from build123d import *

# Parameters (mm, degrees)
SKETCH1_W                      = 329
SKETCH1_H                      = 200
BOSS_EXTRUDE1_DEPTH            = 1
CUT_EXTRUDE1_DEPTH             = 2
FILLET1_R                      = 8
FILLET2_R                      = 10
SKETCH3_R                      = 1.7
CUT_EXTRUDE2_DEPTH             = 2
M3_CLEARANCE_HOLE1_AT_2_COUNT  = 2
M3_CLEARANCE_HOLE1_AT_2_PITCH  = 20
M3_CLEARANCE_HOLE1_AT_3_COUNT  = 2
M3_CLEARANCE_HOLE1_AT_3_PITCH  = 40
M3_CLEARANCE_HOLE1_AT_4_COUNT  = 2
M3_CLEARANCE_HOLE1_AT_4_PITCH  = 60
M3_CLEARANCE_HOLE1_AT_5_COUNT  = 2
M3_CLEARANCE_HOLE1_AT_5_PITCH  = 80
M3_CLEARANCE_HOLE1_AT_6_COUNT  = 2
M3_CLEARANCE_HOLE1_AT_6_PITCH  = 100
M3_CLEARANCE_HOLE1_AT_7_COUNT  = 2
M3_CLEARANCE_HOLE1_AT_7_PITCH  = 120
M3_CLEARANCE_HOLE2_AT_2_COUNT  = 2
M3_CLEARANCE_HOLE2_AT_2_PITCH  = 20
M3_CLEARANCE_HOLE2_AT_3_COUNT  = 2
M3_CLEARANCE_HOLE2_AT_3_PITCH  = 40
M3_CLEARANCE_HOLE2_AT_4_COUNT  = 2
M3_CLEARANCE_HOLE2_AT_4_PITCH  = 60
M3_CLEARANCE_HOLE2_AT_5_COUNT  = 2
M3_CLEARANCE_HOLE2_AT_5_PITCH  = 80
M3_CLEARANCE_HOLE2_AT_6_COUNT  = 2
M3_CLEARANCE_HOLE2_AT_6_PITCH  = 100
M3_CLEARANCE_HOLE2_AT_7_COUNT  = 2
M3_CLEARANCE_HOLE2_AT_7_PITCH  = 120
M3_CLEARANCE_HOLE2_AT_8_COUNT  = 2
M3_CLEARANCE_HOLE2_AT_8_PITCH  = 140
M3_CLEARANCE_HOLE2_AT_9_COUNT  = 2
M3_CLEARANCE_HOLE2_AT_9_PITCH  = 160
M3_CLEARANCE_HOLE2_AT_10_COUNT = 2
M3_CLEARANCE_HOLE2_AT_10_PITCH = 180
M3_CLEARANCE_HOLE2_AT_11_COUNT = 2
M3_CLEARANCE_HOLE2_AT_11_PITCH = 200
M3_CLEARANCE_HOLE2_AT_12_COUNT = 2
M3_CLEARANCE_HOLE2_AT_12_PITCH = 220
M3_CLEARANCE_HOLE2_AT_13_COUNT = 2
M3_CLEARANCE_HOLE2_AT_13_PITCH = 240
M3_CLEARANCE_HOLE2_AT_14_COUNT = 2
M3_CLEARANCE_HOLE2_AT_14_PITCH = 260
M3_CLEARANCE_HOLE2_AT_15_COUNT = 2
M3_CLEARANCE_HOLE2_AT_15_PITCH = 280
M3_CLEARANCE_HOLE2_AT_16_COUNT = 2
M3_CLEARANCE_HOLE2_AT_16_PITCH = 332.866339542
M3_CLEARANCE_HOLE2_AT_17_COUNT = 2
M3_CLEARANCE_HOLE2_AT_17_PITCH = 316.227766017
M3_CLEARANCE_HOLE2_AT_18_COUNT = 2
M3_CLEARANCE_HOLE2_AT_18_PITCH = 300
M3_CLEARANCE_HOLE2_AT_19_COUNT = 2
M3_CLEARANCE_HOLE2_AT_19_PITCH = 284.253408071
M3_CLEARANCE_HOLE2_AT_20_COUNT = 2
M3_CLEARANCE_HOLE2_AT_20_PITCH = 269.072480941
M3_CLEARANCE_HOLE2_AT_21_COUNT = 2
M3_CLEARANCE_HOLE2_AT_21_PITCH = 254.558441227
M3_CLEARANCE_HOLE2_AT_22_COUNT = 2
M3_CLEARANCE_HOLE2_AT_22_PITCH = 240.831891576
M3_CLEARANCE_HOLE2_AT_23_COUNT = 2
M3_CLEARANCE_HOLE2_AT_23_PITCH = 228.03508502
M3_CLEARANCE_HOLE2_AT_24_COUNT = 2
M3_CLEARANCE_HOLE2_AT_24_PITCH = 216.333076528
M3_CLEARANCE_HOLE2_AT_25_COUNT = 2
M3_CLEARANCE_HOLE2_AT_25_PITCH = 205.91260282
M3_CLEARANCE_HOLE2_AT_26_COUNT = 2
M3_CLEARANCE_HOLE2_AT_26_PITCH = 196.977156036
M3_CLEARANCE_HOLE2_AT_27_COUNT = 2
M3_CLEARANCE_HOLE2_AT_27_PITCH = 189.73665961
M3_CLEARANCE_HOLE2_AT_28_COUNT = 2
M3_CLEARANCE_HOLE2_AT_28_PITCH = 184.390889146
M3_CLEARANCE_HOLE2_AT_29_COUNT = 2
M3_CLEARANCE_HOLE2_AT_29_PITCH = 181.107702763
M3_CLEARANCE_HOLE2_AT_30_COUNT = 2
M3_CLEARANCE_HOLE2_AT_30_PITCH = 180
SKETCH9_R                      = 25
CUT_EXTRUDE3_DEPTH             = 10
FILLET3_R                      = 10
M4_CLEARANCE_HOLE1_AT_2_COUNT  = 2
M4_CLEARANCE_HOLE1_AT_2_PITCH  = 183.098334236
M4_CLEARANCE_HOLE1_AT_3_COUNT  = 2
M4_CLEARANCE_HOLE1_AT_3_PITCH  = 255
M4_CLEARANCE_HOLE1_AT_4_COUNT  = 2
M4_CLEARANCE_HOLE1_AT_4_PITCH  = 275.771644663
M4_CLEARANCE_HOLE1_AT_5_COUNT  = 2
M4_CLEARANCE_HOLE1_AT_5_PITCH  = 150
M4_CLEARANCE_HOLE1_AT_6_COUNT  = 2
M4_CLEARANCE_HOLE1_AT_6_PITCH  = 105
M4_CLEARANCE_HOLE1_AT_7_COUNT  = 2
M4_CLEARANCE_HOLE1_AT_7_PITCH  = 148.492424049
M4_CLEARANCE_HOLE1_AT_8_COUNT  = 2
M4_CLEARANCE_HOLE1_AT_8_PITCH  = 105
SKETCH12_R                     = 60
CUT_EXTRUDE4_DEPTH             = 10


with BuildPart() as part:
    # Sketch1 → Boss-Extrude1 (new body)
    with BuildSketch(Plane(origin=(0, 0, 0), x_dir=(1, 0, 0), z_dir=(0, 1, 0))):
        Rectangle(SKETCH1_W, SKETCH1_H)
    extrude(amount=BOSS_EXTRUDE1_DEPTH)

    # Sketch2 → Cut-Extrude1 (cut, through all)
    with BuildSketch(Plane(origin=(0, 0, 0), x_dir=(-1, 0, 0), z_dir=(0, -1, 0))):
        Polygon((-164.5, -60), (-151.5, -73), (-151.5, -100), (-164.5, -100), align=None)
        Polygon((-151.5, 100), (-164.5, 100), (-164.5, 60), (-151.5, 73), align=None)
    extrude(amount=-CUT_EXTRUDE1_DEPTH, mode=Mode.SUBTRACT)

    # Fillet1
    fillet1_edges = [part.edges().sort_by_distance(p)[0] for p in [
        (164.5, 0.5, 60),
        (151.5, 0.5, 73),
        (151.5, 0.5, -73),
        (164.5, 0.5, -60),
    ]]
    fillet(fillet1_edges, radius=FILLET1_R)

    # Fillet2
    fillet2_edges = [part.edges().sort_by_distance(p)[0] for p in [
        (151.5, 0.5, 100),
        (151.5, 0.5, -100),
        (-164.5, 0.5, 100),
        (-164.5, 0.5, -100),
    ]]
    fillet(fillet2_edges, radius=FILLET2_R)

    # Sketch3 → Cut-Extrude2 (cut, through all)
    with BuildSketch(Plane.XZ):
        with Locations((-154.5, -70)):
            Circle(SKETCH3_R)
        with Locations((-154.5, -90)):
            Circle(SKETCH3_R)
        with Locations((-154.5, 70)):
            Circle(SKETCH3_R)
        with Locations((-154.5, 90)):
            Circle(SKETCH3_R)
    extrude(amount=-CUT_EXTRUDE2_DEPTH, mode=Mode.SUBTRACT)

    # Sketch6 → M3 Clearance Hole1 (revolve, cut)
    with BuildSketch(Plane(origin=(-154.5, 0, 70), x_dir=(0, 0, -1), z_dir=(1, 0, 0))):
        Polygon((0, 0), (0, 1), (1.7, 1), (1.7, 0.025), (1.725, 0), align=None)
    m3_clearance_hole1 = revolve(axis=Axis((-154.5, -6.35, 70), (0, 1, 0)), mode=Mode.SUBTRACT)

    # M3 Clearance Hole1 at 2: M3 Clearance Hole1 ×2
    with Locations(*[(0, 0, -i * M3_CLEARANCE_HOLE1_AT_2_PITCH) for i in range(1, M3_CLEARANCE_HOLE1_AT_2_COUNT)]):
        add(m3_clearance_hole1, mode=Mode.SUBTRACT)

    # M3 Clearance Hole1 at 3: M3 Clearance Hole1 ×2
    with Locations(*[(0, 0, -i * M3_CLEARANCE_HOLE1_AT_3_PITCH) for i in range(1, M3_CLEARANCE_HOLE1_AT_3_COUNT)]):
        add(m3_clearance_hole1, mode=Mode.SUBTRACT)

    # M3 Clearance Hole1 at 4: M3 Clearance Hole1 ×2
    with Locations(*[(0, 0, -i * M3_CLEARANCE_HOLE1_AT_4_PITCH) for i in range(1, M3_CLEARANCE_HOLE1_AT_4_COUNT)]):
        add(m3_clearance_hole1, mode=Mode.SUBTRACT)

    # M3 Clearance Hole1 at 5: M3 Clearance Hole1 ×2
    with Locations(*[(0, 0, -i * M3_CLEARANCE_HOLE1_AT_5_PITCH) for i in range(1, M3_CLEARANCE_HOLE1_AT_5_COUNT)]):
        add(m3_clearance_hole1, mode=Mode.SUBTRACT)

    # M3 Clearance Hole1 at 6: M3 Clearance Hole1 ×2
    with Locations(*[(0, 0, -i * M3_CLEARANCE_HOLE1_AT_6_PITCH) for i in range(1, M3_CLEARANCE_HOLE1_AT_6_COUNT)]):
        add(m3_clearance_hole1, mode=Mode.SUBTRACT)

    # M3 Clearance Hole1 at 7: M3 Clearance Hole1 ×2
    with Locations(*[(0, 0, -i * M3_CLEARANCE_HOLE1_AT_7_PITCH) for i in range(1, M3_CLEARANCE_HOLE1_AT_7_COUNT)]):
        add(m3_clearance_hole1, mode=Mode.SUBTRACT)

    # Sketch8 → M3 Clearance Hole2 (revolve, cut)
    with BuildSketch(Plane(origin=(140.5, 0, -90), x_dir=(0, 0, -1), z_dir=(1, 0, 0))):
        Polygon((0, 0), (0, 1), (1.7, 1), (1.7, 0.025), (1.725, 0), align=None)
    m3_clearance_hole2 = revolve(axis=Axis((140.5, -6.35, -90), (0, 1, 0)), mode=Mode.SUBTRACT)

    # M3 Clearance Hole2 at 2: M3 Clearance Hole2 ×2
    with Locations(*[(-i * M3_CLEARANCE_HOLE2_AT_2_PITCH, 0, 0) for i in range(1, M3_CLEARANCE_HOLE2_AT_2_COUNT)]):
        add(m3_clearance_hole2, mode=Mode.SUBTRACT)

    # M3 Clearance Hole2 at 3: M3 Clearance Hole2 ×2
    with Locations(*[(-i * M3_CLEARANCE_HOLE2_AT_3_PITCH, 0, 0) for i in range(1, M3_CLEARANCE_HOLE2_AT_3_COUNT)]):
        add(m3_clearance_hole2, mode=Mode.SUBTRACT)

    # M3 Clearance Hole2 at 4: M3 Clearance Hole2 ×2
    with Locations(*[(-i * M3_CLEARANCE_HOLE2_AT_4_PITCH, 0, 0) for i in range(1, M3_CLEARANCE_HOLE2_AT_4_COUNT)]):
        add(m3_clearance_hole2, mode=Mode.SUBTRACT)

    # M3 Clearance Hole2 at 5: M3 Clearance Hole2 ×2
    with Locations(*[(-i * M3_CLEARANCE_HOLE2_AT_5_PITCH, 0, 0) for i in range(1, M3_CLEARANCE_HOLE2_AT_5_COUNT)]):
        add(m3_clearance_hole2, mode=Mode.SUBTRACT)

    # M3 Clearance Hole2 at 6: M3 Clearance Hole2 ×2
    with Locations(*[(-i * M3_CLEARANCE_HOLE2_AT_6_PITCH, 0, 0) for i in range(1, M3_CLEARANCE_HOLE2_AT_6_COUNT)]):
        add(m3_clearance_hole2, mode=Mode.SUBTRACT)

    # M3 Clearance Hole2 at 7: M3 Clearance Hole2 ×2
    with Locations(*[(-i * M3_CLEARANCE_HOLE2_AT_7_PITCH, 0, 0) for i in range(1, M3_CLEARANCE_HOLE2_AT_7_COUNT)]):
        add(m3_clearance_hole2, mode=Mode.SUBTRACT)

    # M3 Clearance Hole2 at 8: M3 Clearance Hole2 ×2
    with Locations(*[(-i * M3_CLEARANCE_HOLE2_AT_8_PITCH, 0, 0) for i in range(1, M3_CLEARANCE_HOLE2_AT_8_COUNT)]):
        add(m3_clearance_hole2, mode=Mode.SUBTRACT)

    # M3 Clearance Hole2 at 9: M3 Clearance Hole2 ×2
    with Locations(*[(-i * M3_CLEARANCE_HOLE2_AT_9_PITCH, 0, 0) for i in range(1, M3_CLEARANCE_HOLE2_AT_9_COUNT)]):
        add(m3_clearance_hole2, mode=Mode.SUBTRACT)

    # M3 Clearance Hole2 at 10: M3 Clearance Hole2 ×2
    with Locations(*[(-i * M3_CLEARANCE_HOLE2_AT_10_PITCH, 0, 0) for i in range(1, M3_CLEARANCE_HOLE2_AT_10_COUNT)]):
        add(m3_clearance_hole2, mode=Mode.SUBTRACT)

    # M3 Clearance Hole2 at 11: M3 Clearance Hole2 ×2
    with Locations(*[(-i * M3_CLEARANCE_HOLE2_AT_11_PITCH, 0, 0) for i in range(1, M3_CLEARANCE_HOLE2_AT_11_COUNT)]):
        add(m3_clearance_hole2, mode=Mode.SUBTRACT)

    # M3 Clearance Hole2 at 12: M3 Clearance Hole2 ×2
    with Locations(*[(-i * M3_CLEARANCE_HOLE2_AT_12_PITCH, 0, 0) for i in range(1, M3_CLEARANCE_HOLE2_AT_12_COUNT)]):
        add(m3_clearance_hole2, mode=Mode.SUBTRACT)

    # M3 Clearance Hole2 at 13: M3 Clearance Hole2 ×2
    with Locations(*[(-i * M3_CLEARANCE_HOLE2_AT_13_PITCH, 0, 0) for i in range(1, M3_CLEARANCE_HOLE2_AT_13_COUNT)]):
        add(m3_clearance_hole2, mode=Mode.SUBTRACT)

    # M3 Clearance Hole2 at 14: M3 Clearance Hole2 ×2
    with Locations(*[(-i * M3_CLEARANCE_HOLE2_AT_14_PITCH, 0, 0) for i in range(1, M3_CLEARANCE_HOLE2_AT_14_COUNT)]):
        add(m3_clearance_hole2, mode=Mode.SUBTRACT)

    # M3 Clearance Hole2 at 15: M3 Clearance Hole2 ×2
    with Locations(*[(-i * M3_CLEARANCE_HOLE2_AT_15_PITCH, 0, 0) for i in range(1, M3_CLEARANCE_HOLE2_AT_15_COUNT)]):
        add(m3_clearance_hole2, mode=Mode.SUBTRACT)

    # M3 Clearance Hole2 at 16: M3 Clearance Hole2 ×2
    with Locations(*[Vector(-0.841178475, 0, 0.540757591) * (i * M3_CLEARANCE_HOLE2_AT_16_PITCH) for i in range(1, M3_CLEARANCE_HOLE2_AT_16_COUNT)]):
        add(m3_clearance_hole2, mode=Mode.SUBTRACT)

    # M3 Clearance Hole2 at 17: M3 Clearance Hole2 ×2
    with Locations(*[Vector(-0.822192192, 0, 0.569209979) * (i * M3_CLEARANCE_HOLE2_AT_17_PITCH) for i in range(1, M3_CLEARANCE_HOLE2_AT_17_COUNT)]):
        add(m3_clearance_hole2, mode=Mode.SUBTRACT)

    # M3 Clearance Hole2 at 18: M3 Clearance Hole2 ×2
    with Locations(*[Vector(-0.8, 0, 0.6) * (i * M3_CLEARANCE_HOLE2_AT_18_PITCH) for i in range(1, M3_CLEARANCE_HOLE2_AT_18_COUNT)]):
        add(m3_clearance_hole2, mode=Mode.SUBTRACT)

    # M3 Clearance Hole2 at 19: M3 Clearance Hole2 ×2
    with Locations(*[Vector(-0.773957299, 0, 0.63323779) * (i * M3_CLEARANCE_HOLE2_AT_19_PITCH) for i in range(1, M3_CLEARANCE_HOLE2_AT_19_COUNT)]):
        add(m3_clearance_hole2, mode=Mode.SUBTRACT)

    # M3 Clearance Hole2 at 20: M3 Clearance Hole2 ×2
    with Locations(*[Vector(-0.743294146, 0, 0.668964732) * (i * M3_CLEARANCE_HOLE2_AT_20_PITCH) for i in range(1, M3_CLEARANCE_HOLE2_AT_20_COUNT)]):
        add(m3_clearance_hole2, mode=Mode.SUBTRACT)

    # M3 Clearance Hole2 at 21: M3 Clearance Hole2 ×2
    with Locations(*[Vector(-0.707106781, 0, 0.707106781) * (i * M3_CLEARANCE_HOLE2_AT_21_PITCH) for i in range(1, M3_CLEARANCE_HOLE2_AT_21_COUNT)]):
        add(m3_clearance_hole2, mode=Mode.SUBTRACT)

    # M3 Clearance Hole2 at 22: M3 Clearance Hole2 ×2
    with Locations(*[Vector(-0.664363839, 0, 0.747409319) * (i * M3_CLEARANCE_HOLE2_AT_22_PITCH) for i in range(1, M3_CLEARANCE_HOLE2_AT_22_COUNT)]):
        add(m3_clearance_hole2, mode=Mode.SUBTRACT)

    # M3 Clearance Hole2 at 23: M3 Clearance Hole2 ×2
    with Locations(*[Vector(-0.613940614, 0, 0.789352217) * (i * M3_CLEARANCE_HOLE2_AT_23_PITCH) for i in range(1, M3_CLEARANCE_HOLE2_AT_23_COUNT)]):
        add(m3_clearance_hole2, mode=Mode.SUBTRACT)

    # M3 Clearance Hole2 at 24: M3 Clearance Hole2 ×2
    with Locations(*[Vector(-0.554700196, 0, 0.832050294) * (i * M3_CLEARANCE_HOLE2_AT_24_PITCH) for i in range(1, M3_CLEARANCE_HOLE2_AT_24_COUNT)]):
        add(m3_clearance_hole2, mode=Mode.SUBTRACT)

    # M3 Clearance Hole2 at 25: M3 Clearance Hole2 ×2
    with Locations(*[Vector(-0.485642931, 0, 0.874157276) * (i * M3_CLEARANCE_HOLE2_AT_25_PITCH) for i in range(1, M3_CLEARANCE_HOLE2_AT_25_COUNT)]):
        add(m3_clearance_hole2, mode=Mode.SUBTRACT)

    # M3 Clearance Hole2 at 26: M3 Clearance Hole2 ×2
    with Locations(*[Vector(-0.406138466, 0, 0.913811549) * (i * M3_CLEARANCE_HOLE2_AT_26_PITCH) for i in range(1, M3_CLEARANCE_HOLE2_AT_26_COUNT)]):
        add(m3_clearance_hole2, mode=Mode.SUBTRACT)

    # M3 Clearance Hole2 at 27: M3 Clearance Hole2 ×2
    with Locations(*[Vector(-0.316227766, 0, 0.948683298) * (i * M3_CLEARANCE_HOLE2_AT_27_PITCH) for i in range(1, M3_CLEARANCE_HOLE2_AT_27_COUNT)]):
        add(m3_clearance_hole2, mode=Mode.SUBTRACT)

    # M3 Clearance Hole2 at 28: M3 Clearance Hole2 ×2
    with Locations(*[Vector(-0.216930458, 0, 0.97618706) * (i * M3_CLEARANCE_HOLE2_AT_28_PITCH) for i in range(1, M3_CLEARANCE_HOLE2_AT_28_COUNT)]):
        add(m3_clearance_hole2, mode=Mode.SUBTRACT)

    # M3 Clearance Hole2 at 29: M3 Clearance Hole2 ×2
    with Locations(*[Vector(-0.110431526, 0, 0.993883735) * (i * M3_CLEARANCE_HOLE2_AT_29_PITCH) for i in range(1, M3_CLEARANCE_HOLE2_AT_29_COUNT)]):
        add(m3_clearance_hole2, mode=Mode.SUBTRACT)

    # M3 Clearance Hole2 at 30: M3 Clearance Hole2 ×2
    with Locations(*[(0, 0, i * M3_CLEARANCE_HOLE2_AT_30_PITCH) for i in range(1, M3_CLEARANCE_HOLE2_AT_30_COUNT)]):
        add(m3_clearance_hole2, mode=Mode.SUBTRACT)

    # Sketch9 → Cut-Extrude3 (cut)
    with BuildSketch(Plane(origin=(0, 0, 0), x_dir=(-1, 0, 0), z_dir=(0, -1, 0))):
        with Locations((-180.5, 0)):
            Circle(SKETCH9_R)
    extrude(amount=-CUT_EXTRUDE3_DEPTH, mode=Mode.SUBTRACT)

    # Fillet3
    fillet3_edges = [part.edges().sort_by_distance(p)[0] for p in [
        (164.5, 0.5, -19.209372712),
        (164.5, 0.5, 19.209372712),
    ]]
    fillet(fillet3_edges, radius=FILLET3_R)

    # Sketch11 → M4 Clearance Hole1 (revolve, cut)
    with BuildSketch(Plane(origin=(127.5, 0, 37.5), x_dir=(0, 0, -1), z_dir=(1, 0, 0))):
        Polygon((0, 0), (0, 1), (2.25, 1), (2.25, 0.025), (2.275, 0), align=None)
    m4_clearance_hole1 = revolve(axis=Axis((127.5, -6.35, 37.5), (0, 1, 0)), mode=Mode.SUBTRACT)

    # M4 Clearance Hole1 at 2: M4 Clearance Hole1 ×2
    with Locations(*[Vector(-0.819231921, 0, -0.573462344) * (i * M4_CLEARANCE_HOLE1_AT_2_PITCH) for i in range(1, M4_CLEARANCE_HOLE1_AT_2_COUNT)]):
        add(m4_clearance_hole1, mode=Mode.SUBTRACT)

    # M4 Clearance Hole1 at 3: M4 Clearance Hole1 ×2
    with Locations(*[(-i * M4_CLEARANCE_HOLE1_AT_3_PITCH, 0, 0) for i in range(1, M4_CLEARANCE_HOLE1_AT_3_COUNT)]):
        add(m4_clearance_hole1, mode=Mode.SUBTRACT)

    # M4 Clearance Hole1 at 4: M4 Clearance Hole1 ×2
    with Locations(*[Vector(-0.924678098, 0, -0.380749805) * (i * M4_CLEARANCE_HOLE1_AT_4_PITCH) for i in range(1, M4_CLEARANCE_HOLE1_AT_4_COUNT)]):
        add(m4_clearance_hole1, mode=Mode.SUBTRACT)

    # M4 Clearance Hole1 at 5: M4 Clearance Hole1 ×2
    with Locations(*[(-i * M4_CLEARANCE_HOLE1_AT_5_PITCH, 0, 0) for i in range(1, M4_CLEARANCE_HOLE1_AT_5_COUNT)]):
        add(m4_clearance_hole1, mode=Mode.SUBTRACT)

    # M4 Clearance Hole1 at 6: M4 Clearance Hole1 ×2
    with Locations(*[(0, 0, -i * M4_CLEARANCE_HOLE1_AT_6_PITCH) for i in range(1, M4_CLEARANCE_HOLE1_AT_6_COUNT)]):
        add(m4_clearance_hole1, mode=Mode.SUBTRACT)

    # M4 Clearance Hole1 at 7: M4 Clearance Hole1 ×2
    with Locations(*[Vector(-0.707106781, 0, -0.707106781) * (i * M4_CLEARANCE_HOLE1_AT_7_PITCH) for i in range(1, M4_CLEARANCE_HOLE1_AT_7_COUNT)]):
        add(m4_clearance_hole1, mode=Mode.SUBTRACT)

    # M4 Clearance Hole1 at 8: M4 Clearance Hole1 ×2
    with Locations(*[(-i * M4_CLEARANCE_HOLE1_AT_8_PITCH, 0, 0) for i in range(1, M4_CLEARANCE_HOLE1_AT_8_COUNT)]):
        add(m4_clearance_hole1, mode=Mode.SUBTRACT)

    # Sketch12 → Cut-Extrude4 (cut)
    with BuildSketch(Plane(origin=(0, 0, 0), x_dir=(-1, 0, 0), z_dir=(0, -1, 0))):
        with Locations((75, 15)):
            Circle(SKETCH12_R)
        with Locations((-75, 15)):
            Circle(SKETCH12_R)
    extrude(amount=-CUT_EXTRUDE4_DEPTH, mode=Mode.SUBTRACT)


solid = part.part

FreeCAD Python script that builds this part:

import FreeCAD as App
import Part
import Sketcher

V = App.Vector
Q = App.Units.Quantity


def edges_at(feature, points):
    """Names of the edges that pass closest to the given points."""
    edges = feature.Shape.Edges
    near = lambda p: min(range(len(edges)), key=lambda i: edges[i].distToShape(Part.Vertex(*p))[0])
    return sorted({f"Edge{near(p) + 1}" for p in points})

doc = App.newDocument("Part")
body = doc.addObject("PartDesign::Body", "Body")

# Sketch on XZ plane
sketch1 = doc.addObject("Sketcher::SketchObject", "Sketch")
body.addObject(sketch1)
sketch1.AttachmentSupport = (doc.XZ_Plane, [""])
sketch1.MapMode = "FlatFace"
sketch1.addGeometry(Part.LineSegment(V(-164.5, -100, 0), V(-164.5, 100, 0)), False)
sketch1.addGeometry(Part.LineSegment(V(-164.5, 100, 0), V(164.5, 100, 0)), False)
sketch1.addGeometry(Part.LineSegment(V(164.5, 100, 0), V(164.5, -100, 0)), False)
sketch1.addGeometry(Part.LineSegment(V(164.5, -100, 0), V(-164.5, -100, 0)), False)
sketch1.addConstraint(Sketcher.Constraint("Coincident", 0, 2, 1, 1))
sketch1.addConstraint(Sketcher.Constraint("Coincident", 1, 2, 2, 1))
sketch1.addConstraint(Sketcher.Constraint("Coincident", 2, 2, 3, 1))
sketch1.addConstraint(Sketcher.Constraint("Coincident", 3, 2, 0, 1))
sketch1.addConstraint(Sketcher.Constraint("Vertical", 0))
sketch1.addConstraint(Sketcher.Constraint("Horizontal", 1))
sketch1.addConstraint(Sketcher.Constraint("Vertical", 2))
sketch1.addConstraint(Sketcher.Constraint("Horizontal", 3))
sketch1.addConstraint(Sketcher.Constraint("Symmetric", 0, 2, 2, 2, -1, 1))
sketch1.addConstraint(Sketcher.Constraint("DistanceX", 1, 1, 1, 2, 329.0))
sketch1.addConstraint(Sketcher.Constraint("DistanceY", 0, 1, 0, 2, 200.0))
pad1 = doc.addObject("PartDesign::Pad", "Pad")
body.addObject(pad1)
pad1.Profile = sketch1
pad1.Length = 1
pad1.Reversed = True

# Sketch on XZ plane
sketch2 = doc.addObject("Sketcher::SketchObject", "Sketch001")
body.addObject(sketch2)
sketch2.AttachmentSupport = (doc.XZ_Plane, [""])
sketch2.MapMode = "FlatFace"
sketch2.addGeometry(Part.LineSegment(V(151.5, 73, 0), V(164.5, 60, 0)), False)
sketch2.addGeometry(Part.LineSegment(V(164.5, 60, 0), V(164.5, 100, 0)), False)
sketch2.addGeometry(Part.LineSegment(V(164.5, 100, 0), V(151.5, 100, 0)), False)
sketch2.addGeometry(Part.LineSegment(V(151.5, 100, 0), V(151.5, 73, 0)), False)
sketch2.addGeometry(Part.LineSegment(V(151.5, -100, 0), V(164.5, -100, 0)), False)
sketch2.addGeometry(Part.LineSegment(V(164.5, -100, 0), V(164.5, -60, 0)), False)
sketch2.addGeometry(Part.LineSegment(V(164.5, -60, 0), V(151.5, -73, 0)), False)
sketch2.addGeometry(Part.LineSegment(V(151.5, -73, 0), V(151.5, -100, 0)), False)
sketch2.addConstraint(Sketcher.Constraint("Coincident", 0, 2, 1, 1))
sketch2.addConstraint(Sketcher.Constraint("Coincident", 1, 2, 2, 1))
sketch2.addConstraint(Sketcher.Constraint("Coincident", 2, 2, 3, 1))
sketch2.addConstraint(Sketcher.Constraint("Coincident", 3, 2, 0, 1))
sketch2.addConstraint(Sketcher.Constraint("Coincident", 4, 2, 5, 1))
sketch2.addConstraint(Sketcher.Constraint("Coincident", 5, 2, 6, 1))
sketch2.addConstraint(Sketcher.Constraint("Coincident", 6, 2, 7, 1))
sketch2.addConstraint(Sketcher.Constraint("Coincident", 7, 2, 4, 1))
sketch2.addConstraint(Sketcher.Constraint("Vertical", 1))
sketch2.addConstraint(Sketcher.Constraint("Horizontal", 2))
sketch2.addConstraint(Sketcher.Constraint("Vertical", 3))
sketch2.addConstraint(Sketcher.Constraint("Horizontal", 4))
sketch2.addConstraint(Sketcher.Constraint("Vertical", 5))
sketch2.addConstraint(Sketcher.Constraint("Vertical", 7))
sketch2.addConstraint(Sketcher.Constraint("Symmetric", 1, 2, 4, 2, -1))
sketch2.addConstraint(Sketcher.Constraint("Symmetric", 3, 2, 6, 2, -1))
sketch2.addConstraint(Sketcher.Constraint("Perpendicular", 0, 6))
sketch2.addConstraint(Sketcher.Constraint("Equal", 1, 5))
sketch2.addConstraint(Sketcher.Constraint("DistanceX", 2, 2, 2, 1, 13.0))
sketch2.addConstraint(Sketcher.Constraint("DistanceY", 1, 1, 1, 2, 40.0))
sketch2.addConstraint(Sketcher.Constraint("DistanceY", -1, 1, 0, 2, 60.0))
sketch2.addConstraint(Sketcher.Constraint("DistanceX", -1, 1, 0, 2, 164.5))
pocket1 = doc.addObject("PartDesign::Pocket", "Pocket")
body.addObject(pocket1)
pocket1.Profile = sketch2
pocket1.Type = "ThroughAll"
doc.recompute()

fillet = doc.addObject("PartDesign::Fillet", "Fillet")
body.addObject(fillet)
fillet.Base = (pocket1, edges_at(pocket1, [
    (164.5, 0.5, 60),
    (151.5, 0.5, 73),
    (151.5, 0.5, -73),
    (164.5, 0.5, -60),
]))
fillet.Radius = 8
doc.recompute()

fillet2 = doc.addObject("PartDesign::Fillet", "Fillet001")
body.addObject(fillet2)
fillet2.Base = (fillet, edges_at(fillet, [
    (151.5, 0.5, 100),
    (151.5, 0.5, -100),
    (-164.5, 0.5, 100),
    (-164.5, 0.5, -100),
]))
fillet2.Radius = 10

# Sketch on XZ plane
sketch3 = doc.addObject("Sketcher::SketchObject", "Sketch002")
body.addObject(sketch3)
sketch3.AttachmentSupport = (doc.XZ_Plane, [""])
sketch3.MapMode = "FlatFace"
sketch3.addGeometry(Part.Circle(V(-154.5, -70, 0), V(0, 0, 1), 1.7), False)
sketch3.addGeometry(Part.Circle(V(-154.5, -90, 0), V(0, 0, 1), 1.7), False)
sketch3.addGeometry(Part.Circle(V(-154.5, 70, 0), V(0, 0, 1), 1.7), False)
sketch3.addGeometry(Part.Circle(V(-154.5, 90, 0), V(0, 0, 1), 1.7), False)
sketch3.addConstraint(Sketcher.Constraint("Equal", 0, 1))
sketch3.addConstraint(Sketcher.Constraint("Equal", 1, 2))
sketch3.addConstraint(Sketcher.Constraint("Equal", 2, 3))
sketch3.addConstraint(Sketcher.Constraint("Symmetric", 0, 3, 2, 3, -1))
sketch3.addConstraint(Sketcher.Constraint("Symmetric", 1, 3, 3, 3, -1))
sketch3.addConstraint(Sketcher.Constraint("Vertical", 0, 3, 1, 3))
sketch3.addConstraint(Sketcher.Constraint("Diameter", 0, 3.4))
sketch3.addConstraint(Sketcher.Constraint("DistanceY", 0, 3, -1, 1, 70.0))
sketch3.addConstraint(Sketcher.Constraint("DistanceY", 1, 3, -1, 1, 90.0))
sketch3.addConstraint(Sketcher.Constraint("DistanceX", 0, 3, -1, 1, 154.5))
pocket2 = doc.addObject("PartDesign::Pocket", "Pocket001")
body.addObject(pocket2)
pocket2.Profile = sketch3
pocket2.Type = "ThroughAll"

# Sketch on YZ plane
sketch4 = doc.addObject("Sketcher::SketchObject", "Sketch003")
body.addObject(sketch4)
sketch4.AttachmentSupport = (doc.YZ_Plane, [""])
sketch4.MapMode = "FlatFace"
sketch4.AttachmentOffset = App.Placement(V(0, 0, -154.5), App.Rotation())
sketch4.addGeometry(Part.LineSegment(V(1, 70, 0), V(0, 70, 0)), False)
sketch4.addGeometry(Part.LineSegment(V(0, 70, 0), V(0, 68.275, 0)), False)
sketch4.addGeometry(Part.LineSegment(V(0, 68.275, 0), V(0.025, 68.3, 0)), False)
sketch4.addGeometry(Part.LineSegment(V(0.025, 68.3, 0), V(1, 68.3, 0)), False)
sketch4.addGeometry(Part.LineSegment(V(1, 68.3, 0), V(1, 70, 0)), False)
sketch4.addGeometry(Part.LineSegment(V(0, 70, 0), V(1, 70, 0)), True)  # axis
sketch4.addConstraint(Sketcher.Constraint("Coincident", 0, 2, 1, 1))
sketch4.addConstraint(Sketcher.Constraint("Coincident", 1, 2, 2, 1))
sketch4.addConstraint(Sketcher.Constraint("Coincident", 2, 2, 3, 1))
sketch4.addConstraint(Sketcher.Constraint("Coincident", 3, 2, 4, 1))
sketch4.addConstraint(Sketcher.Constraint("Coincident", 4, 2, 0, 1))
sketch4.addConstraint(Sketcher.Constraint("Horizontal", 0))
sketch4.addConstraint(Sketcher.Constraint("Vertical", 1))
sketch4.addConstraint(Sketcher.Constraint("Horizontal", 3))
sketch4.addConstraint(Sketcher.Constraint("Vertical", 4))
sketch4.addConstraint(Sketcher.Constraint("Horizontal", 5))
sketch4.addConstraint(Sketcher.Constraint("Coincident", 5, 1, 0, 2))
sketch4.addConstraint(Sketcher.Constraint("PointOnObject", 0, 2, -2))
sketch4.addConstraint(Sketcher.Constraint("Vertical", 3, 2, 5, 2))
sketch4.addConstraint(Sketcher.Constraint("DistanceX", 0, 2, 0, 1, 1.0))
sketch4.addConstraint(Sketcher.Constraint("Angle", 2, Q("45 deg")))
sketch4.addConstraint(Sketcher.Constraint("DistanceY", 4, 1, 4, 2, 1.7))
sketch4.addConstraint(Sketcher.Constraint("DistanceY", -1, 1, 0, 2, 70.0))
sketch4.addConstraint(Sketcher.Constraint("DistanceX", 3, 1, 3, 2, 0.975))
groove = doc.addObject("PartDesign::Groove", "Groove")
body.addObject(groove)
groove.Profile = sketch4
groove.ReferenceAxis = (sketch4, ["Axis0"])
groove.Angle = 360
doc.recompute()

linearpattern = doc.addObject("PartDesign::LinearPattern", "LinearPattern")
body.addObject(linearpattern)
linearpattern.Originals = [groove]
linearpattern.Direction = (doc.Z_Axis, [""])
linearpattern.Mode = "offset"
linearpattern.Offset = 20
linearpattern.Occurrences = 2
linearpattern.Reversed = True
body.Tip = linearpattern
doc.recompute()

linearpattern2 = doc.addObject("PartDesign::LinearPattern", "LinearPattern001")
body.addObject(linearpattern2)
linearpattern2.Originals = [groove]
linearpattern2.Direction = (doc.Z_Axis, [""])
linearpattern2.Mode = "offset"
linearpattern2.Offset = 40
linearpattern2.Occurrences = 2
linearpattern2.Reversed = True
body.Tip = linearpattern2
doc.recompute()

linearpattern3 = doc.addObject("PartDesign::LinearPattern", "LinearPattern002")
body.addObject(linearpattern3)
linearpattern3.Originals = [groove]
linearpattern3.Direction = (doc.Z_Axis, [""])
linearpattern3.Mode = "offset"
linearpattern3.Offset = 60
linearpattern3.Occurrences = 2
linearpattern3.Reversed = True
body.Tip = linearpattern3
doc.recompute()

linearpattern4 = doc.addObject("PartDesign::LinearPattern", "LinearPattern003")
body.addObject(linearpattern4)
linearpattern4.Originals = [groove]
linearpattern4.Direction = (doc.Z_Axis, [""])
linearpattern4.Mode = "offset"
linearpattern4.Offset = 80
linearpattern4.Occurrences = 2
linearpattern4.Reversed = True
body.Tip = linearpattern4
doc.recompute()

linearpattern5 = doc.addObject("PartDesign::LinearPattern", "LinearPattern004")
body.addObject(linearpattern5)
linearpattern5.Originals = [groove]
linearpattern5.Direction = (doc.Z_Axis, [""])
linearpattern5.Mode = "offset"
linearpattern5.Offset = 100
linearpattern5.Occurrences = 2
linearpattern5.Reversed = True
body.Tip = linearpattern5
doc.recompute()

linearpattern6 = doc.addObject("PartDesign::LinearPattern", "LinearPattern005")
body.addObject(linearpattern6)
linearpattern6.Originals = [groove]
linearpattern6.Direction = (doc.Z_Axis, [""])
linearpattern6.Mode = "offset"
linearpattern6.Offset = 120
linearpattern6.Occurrences = 2
linearpattern6.Reversed = True
body.Tip = linearpattern6

# Sketch on YZ plane
sketch5 = doc.addObject("Sketcher::SketchObject", "Sketch004")
body.addObject(sketch5)
sketch5.AttachmentSupport = (doc.YZ_Plane, [""])
sketch5.MapMode = "FlatFace"
sketch5.AttachmentOffset = App.Placement(V(0, 0, 140.5), App.Rotation())
sketch5.addGeometry(Part.LineSegment(V(1, -90, 0), V(0, -90, 0)), False)
sketch5.addGeometry(Part.LineSegment(V(0, -90, 0), V(0, -91.725, 0)), False)
sketch5.addGeometry(Part.LineSegment(V(0, -91.725, 0), V(0.025, -91.7, 0)), False)
sketch5.addGeometry(Part.LineSegment(V(0.025, -91.7, 0), V(1, -91.7, 0)), False)
sketch5.addGeometry(Part.LineSegment(V(1, -91.7, 0), V(1, -90, 0)), False)
sketch5.addGeometry(Part.LineSegment(V(0, -90, 0), V(1, -90, 0)), True)  # axis
sketch5.addConstraint(Sketcher.Constraint("Coincident", 0, 2, 1, 1))
sketch5.addConstraint(Sketcher.Constraint("Coincident", 1, 2, 2, 1))
sketch5.addConstraint(Sketcher.Constraint("Coincident", 2, 2, 3, 1))
sketch5.addConstraint(Sketcher.Constraint("Coincident", 3, 2, 4, 1))
sketch5.addConstraint(Sketcher.Constraint("Coincident", 4, 2, 0, 1))
sketch5.addConstraint(Sketcher.Constraint("Horizontal", 0))
sketch5.addConstraint(Sketcher.Constraint("Vertical", 1))
sketch5.addConstraint(Sketcher.Constraint("Horizontal", 3))
sketch5.addConstraint(Sketcher.Constraint("Vertical", 4))
sketch5.addConstraint(Sketcher.Constraint("Horizontal", 5))
sketch5.addConstraint(Sketcher.Constraint("Coincident", 5, 1, 0, 2))
sketch5.addConstraint(Sketcher.Constraint("PointOnObject", 0, 2, -2))
sketch5.addConstraint(Sketcher.Constraint("Vertical", 3, 2, 5, 2))
sketch5.addConstraint(Sketcher.Constraint("DistanceX", 0, 2, 0, 1, 1.0))
sketch5.addConstraint(Sketcher.Constraint("Angle", 2, Q("45 deg")))
sketch5.addConstraint(Sketcher.Constraint("DistanceY", 4, 1, 4, 2, 1.7))
sketch5.addConstraint(Sketcher.Constraint("DistanceY", 0, 2, -1, 1, 90.0))
sketch5.addConstraint(Sketcher.Constraint("DistanceX", 3, 1, 3, 2, 0.975))
groove2 = doc.addObject("PartDesign::Groove", "Groove001")
body.addObject(groove2)
groove2.Profile = sketch5
groove2.ReferenceAxis = (sketch5, ["Axis0"])
groove2.Angle = 360
doc.recompute()

linearpattern7 = doc.addObject("PartDesign::LinearPattern", "LinearPattern006")
body.addObject(linearpattern7)
linearpattern7.Originals = [groove2]
linearpattern7.Direction = (doc.X_Axis, [""])
linearpattern7.Mode = "offset"
linearpattern7.Offset = 20
linearpattern7.Occurrences = 2
linearpattern7.Reversed = True
body.Tip = linearpattern7
doc.recompute()

linearpattern8 = doc.addObject("PartDesign::LinearPattern", "LinearPattern007")
body.addObject(linearpattern8)
linearpattern8.Originals = [groove2]
linearpattern8.Direction = (doc.X_Axis, [""])
linearpattern8.Mode = "offset"
linearpattern8.Offset = 40
linearpattern8.Occurrences = 2
linearpattern8.Reversed = True
body.Tip = linearpattern8
doc.recompute()

linearpattern9 = doc.addObject("PartDesign::LinearPattern", "LinearPattern008")
body.addObject(linearpattern9)
linearpattern9.Originals = [groove2]
linearpattern9.Direction = (doc.X_Axis, [""])
linearpattern9.Mode = "offset"
linearpattern9.Offset = 60
linearpattern9.Occurrences = 2
linearpattern9.Reversed = True
body.Tip = linearpattern9
doc.recompute()

linearpattern10 = doc.addObject("PartDesign::LinearPattern", "LinearPattern009")
body.addObject(linearpattern10)
linearpattern10.Originals = [groove2]
linearpattern10.Direction = (doc.X_Axis, [""])
linearpattern10.Mode = "offset"
linearpattern10.Offset = 80
linearpattern10.Occurrences = 2
linearpattern10.Reversed = True
body.Tip = linearpattern10
doc.recompute()

linearpattern11 = doc.addObject("PartDesign::LinearPattern", "LinearPattern010")
body.addObject(linearpattern11)
linearpattern11.Originals = [groove2]
linearpattern11.Direction = (doc.X_Axis, [""])
linearpattern11.Mode = "offset"
linearpattern11.Offset = 100
linearpattern11.Occurrences = 2
linearpattern11.Reversed = True
body.Tip = linearpattern11
doc.recompute()

linearpattern12 = doc.addObject("PartDesign::LinearPattern", "LinearPattern011")
body.addObject(linearpattern12)
linearpattern12.Originals = [groove2]
linearpattern12.Direction = (doc.X_Axis, [""])
linearpattern12.Mode = "offset"
linearpattern12.Offset = 120
linearpattern12.Occurrences = 2
linearpattern12.Reversed = True
body.Tip = linearpattern12
doc.recompute()

linearpattern13 = doc.addObject("PartDesign::LinearPattern", "LinearPattern012")
body.addObject(linearpattern13)
linearpattern13.Originals = [groove2]
linearpattern13.Direction = (doc.X_Axis, [""])
linearpattern13.Mode = "offset"
linearpattern13.Offset = 140
linearpattern13.Occurrences = 2
linearpattern13.Reversed = True
body.Tip = linearpattern13
doc.recompute()

linearpattern14 = doc.addObject("PartDesign::LinearPattern", "LinearPattern013")
body.addObject(linearpattern14)
linearpattern14.Originals = [groove2]
linearpattern14.Direction = (doc.X_Axis, [""])
linearpattern14.Mode = "offset"
linearpattern14.Offset = 160
linearpattern14.Occurrences = 2
linearpattern14.Reversed = True
body.Tip = linearpattern14
doc.recompute()

linearpattern15 = doc.addObject("PartDesign::LinearPattern", "LinearPattern014")
body.addObject(linearpattern15)
linearpattern15.Originals = [groove2]
linearpattern15.Direction = (doc.X_Axis, [""])
linearpattern15.Mode = "offset"
linearpattern15.Offset = 180
linearpattern15.Occurrences = 2
linearpattern15.Reversed = True
body.Tip = linearpattern15
doc.recompute()

linearpattern16 = doc.addObject("PartDesign::LinearPattern", "LinearPattern015")
body.addObject(linearpattern16)
linearpattern16.Originals = [groove2]
linearpattern16.Direction = (doc.X_Axis, [""])
linearpattern16.Mode = "offset"
linearpattern16.Offset = 200
linearpattern16.Occurrences = 2
linearpattern16.Reversed = True
body.Tip = linearpattern16
doc.recompute()

linearpattern17 = doc.addObject("PartDesign::LinearPattern", "LinearPattern016")
body.addObject(linearpattern17)
linearpattern17.Originals = [groove2]
linearpattern17.Direction = (doc.X_Axis, [""])
linearpattern17.Mode = "offset"
linearpattern17.Offset = 220
linearpattern17.Occurrences = 2
linearpattern17.Reversed = True
body.Tip = linearpattern17
doc.recompute()

linearpattern18 = doc.addObject("PartDesign::LinearPattern", "LinearPattern017")
body.addObject(linearpattern18)
linearpattern18.Originals = [groove2]
linearpattern18.Direction = (doc.X_Axis, [""])
linearpattern18.Mode = "offset"
linearpattern18.Offset = 240
linearpattern18.Occurrences = 2
linearpattern18.Reversed = True
body.Tip = linearpattern18
doc.recompute()

linearpattern19 = doc.addObject("PartDesign::LinearPattern", "LinearPattern018")
body.addObject(linearpattern19)
linearpattern19.Originals = [groove2]
linearpattern19.Direction = (doc.X_Axis, [""])
linearpattern19.Mode = "offset"
linearpattern19.Offset = 260
linearpattern19.Occurrences = 2
linearpattern19.Reversed = True
body.Tip = linearpattern19
doc.recompute()

linearpattern20 = doc.addObject("PartDesign::LinearPattern", "LinearPattern019")
body.addObject(linearpattern20)
linearpattern20.Originals = [groove2]
linearpattern20.Direction = (doc.X_Axis, [""])
linearpattern20.Mode = "offset"
linearpattern20.Offset = 280
linearpattern20.Occurrences = 2
linearpattern20.Reversed = True
body.Tip = linearpattern20
doc.recompute()

datumline = doc.addObject("PartDesign::Line", "DatumLine")
body.addObject(datumline)
datumline.Placement = App.Placement(V(0, 0, 0), App.Rotation(V(0, 0, 1), V(-0.841178475, 0, 0.540757591)))
linearpattern21 = doc.addObject("PartDesign::LinearPattern", "LinearPattern020")
body.addObject(linearpattern21)
linearpattern21.Originals = [groove2]
linearpattern21.Direction = (datumline, [""])
linearpattern21.Mode = "offset"
linearpattern21.Offset = 332.866339
linearpattern21.Occurrences = 2
body.Tip = linearpattern21
doc.recompute()

datumline2 = doc.addObject("PartDesign::Line", "DatumLine001")
body.addObject(datumline2)
datumline2.Placement = App.Placement(V(0, 0, 0), App.Rotation(V(0, 0, 1), V(-0.822192192, 0, 0.569209979)))
linearpattern22 = doc.addObject("PartDesign::LinearPattern", "LinearPattern021")
body.addObject(linearpattern22)
linearpattern22.Originals = [groove2]
linearpattern22.Direction = (datumline2, [""])
linearpattern22.Mode = "offset"
linearpattern22.Offset = 316.227766
linearpattern22.Occurrences = 2
body.Tip = linearpattern22
doc.recompute()

datumline3 = doc.addObject("PartDesign::Line", "DatumLine002")
body.addObject(datumline3)
datumline3.Placement = App.Placement(V(0, 0, 0), App.Rotation(V(0, 0, 1), V(-0.8, 0, 0.6)))
linearpattern23 = doc.addObject("PartDesign::LinearPattern", "LinearPattern022")
body.addObject(linearpattern23)
linearpattern23.Originals = [groove2]
linearpattern23.Direction = (datumline3, [""])
linearpattern23.Mode = "offset"
linearpattern23.Offset = 300
linearpattern23.Occurrences = 2
body.Tip = linearpattern23
doc.recompute()

datumline4 = doc.addObject("PartDesign::Line", "DatumLine003")
body.addObject(datumline4)
datumline4.Placement = App.Placement(V(0, 0, 0), App.Rotation(V(0, 0, 1), V(-0.773957299, 0, 0.63323779)))
linearpattern24 = doc.addObject("PartDesign::LinearPattern", "LinearPattern023")
body.addObject(linearpattern24)
linearpattern24.Originals = [groove2]
linearpattern24.Direction = (datumline4, [""])
linearpattern24.Mode = "offset"
linearpattern24.Offset = 284.253408
linearpattern24.Occurrences = 2
body.Tip = linearpattern24
doc.recompute()

datumline5 = doc.addObject("PartDesign::Line", "DatumLine004")
body.addObject(datumline5)
datumline5.Placement = App.Placement(V(0, 0, 0), App.Rotation(V(0, 0, 1), V(-0.743294146, 0, 0.668964732)))
linearpattern25 = doc.addObject("PartDesign::LinearPattern", "LinearPattern024")
body.addObject(linearpattern25)
linearpattern25.Originals = [groove2]
linearpattern25.Direction = (datumline5, [""])
linearpattern25.Mode = "offset"
linearpattern25.Offset = 269.072481
linearpattern25.Occurrences = 2
body.Tip = linearpattern25
doc.recompute()

datumline6 = doc.addObject("PartDesign::Line", "DatumLine005")
body.addObject(datumline6)
datumline6.Placement = App.Placement(V(0, 0, 0), App.Rotation(V(0, 0, 1), V(-0.707106781, 0, 0.707106781)))
linearpattern26 = doc.addObject("PartDesign::LinearPattern", "LinearPattern025")
body.addObject(linearpattern26)
linearpattern26.Originals = [groove2]
linearpattern26.Direction = (datumline6, [""])
linearpattern26.Mode = "offset"
linearpattern26.Offset = 254.558441
linearpattern26.Occurrences = 2
body.Tip = linearpattern26
doc.recompute()

datumline7 = doc.addObject("PartDesign::Line", "DatumLine006")
body.addObject(datumline7)
datumline7.Placement = App.Placement(V(0, 0, 0), App.Rotation(V(0, 0, 1), V(-0.664363839, 0, 0.747409319)))
linearpattern27 = doc.addObject("PartDesign::LinearPattern", "LinearPattern026")
body.addObject(linearpattern27)
linearpattern27.Originals = [groove2]
linearpattern27.Direction = (datumline7, [""])
linearpattern27.Mode = "offset"
linearpattern27.Offset = 240.831892
linearpattern27.Occurrences = 2
body.Tip = linearpattern27
doc.recompute()

datumline8 = doc.addObject("PartDesign::Line", "DatumLine007")
body.addObject(datumline8)
datumline8.Placement = App.Placement(V(0, 0, 0), App.Rotation(V(0, 0, 1), V(-0.613940614, 0, 0.789352217)))
linearpattern28 = doc.addObject("PartDesign::LinearPattern", "LinearPattern027")
body.addObject(linearpattern28)
linearpattern28.Originals = [groove2]
linearpattern28.Direction = (datumline8, [""])
linearpattern28.Mode = "offset"
linearpattern28.Offset = 228.035085
linearpattern28.Occurrences = 2
body.Tip = linearpattern28
doc.recompute()

datumline9 = doc.addObject("PartDesign::Line", "DatumLine008")
body.addObject(datumline9)
datumline9.Placement = App.Placement(V(0, 0, 0), App.Rotation(V(0, 0, 1), V(-0.554700196, 0, 0.832050294)))
linearpattern29 = doc.addObject("PartDesign::LinearPattern", "LinearPattern028")
body.addObject(linearpattern29)
linearpattern29.Originals = [groove2]
linearpattern29.Direction = (datumline9, [""])
linearpattern29.Mode = "offset"
linearpattern29.Offset = 216.333076
linearpattern29.Occurrences = 2
body.Tip = linearpattern29
doc.recompute()

datumline10 = doc.addObject("PartDesign::Line", "DatumLine009")
body.addObject(datumline10)
datumline10.Placement = App.Placement(V(0, 0, 0), App.Rotation(V(0, 0, 1), V(-0.485642931, 0, 0.874157276)))
linearpattern30 = doc.addObject("PartDesign::LinearPattern", "LinearPattern029")
body.addObject(linearpattern30)
linearpattern30.Originals = [groove2]
linearpattern30.Direction = (datumline10, [""])
linearpattern30.Mode = "offset"
linearpattern30.Offset = 205.912603
linearpattern30.Occurrences = 2
body.Tip = linearpattern30
doc.recompute()

datumline11 = doc.addObject("PartDesign::Line", "DatumLine010")
body.addObject(datumline11)
datumline11.Placement = App.Placement(V(0, 0, 0), App.Rotation(V(0, 0, 1), V(-0.406138466, 0, 0.913811549)))
linearpattern31 = doc.addObject("PartDesign::LinearPattern", "LinearPattern030")
body.addObject(linearpattern31)
linearpattern31.Originals = [groove2]
linearpattern31.Direction = (datumline11, [""])
linearpattern31.Mode = "offset"
linearpattern31.Offset = 196.977156
linearpattern31.Occurrences = 2
body.Tip = linearpattern31
doc.recompute()

datumline12 = doc.addObject("PartDesign::Line", "DatumLine011")
body.addObject(datumline12)
datumline12.Placement = App.Placement(V(0, 0, 0), App.Rotation(V(0, 0, 1), V(-0.316227766, 0, 0.948683298)))
linearpattern32 = doc.addObject("PartDesign::LinearPattern", "LinearPattern031")
body.addObject(linearpattern32)
linearpattern32.Originals = [groove2]
linearpattern32.Direction = (datumline12, [""])
linearpattern32.Mode = "offset"
linearpattern32.Offset = 189.73666
linearpattern32.Occurrences = 2
body.Tip = linearpattern32
doc.recompute()

datumline13 = doc.addObject("PartDesign::Line", "DatumLine012")
body.addObject(datumline13)
datumline13.Placement = App.Placement(V(0, 0, 0), App.Rotation(V(0, 0, 1), V(-0.216930458, 0, 0.97618706)))
linearpattern33 = doc.addObject("PartDesign::LinearPattern", "LinearPattern032")
body.addObject(linearpattern33)
linearpattern33.Originals = [groove2]
linearpattern33.Direction = (datumline13, [""])
linearpattern33.Mode = "offset"
linearpattern33.Offset = 184.390889
linearpattern33.Occurrences = 2
body.Tip = linearpattern33
doc.recompute()

datumline14 = doc.addObject("PartDesign::Line", "DatumLine013")
body.addObject(datumline14)
datumline14.Placement = App.Placement(V(0, 0, 0), App.Rotation(V(0, 0, 1), V(-0.110431526, 0, 0.993883735)))
linearpattern34 = doc.addObject("PartDesign::LinearPattern", "LinearPattern033")
body.addObject(linearpattern34)
linearpattern34.Originals = [groove2]
linearpattern34.Direction = (datumline14, [""])
linearpattern34.Mode = "offset"
linearpattern34.Offset = 181.107703
linearpattern34.Occurrences = 2
body.Tip = linearpattern34
doc.recompute()

linearpattern35 = doc.addObject("PartDesign::LinearPattern", "LinearPattern034")
body.addObject(linearpattern35)
linearpattern35.Originals = [groove2]
linearpattern35.Direction = (doc.Z_Axis, [""])
linearpattern35.Mode = "offset"
linearpattern35.Offset = 180
linearpattern35.Occurrences = 2
body.Tip = linearpattern35

# Sketch on XZ plane
sketch6 = doc.addObject("Sketcher::SketchObject", "Sketch005")
body.addObject(sketch6)
sketch6.AttachmentSupport = (doc.XZ_Plane, [""])
sketch6.MapMode = "FlatFace"
sketch6.addGeometry(Part.Circle(V(180.5, 0, 0), V(0, 0, 1), 25), False)
sketch6.addConstraint(Sketcher.Constraint("PointOnObject", 0, 3, -1))
sketch6.addConstraint(Sketcher.Constraint("Diameter", 0, 50.0))
sketch6.addConstraint(Sketcher.Constraint("DistanceX", -1, 1, 0, 3, 180.5))
pocket3 = doc.addObject("PartDesign::Pocket", "Pocket002")
body.addObject(pocket3)
pocket3.Profile = sketch6
pocket3.Length = 10
doc.recompute()

fillet3 = doc.addObject("PartDesign::Fillet", "Fillet002")
body.addObject(fillet3)
fillet3.Base = (pocket3, edges_at(pocket3, [(164.5, 0.5, -19.209), (164.5, 0.5, 19.209)]))
fillet3.Radius = 10

# Sketch on YZ plane
sketch7 = doc.addObject("Sketcher::SketchObject", "Sketch006")
body.addObject(sketch7)
sketch7.AttachmentSupport = (doc.YZ_Plane, [""])
sketch7.MapMode = "FlatFace"
sketch7.AttachmentOffset = App.Placement(V(0, 0, 127.5), App.Rotation())
sketch7.addGeometry(Part.LineSegment(V(1, 37.5, 0), V(0, 37.5, 0)), False)
sketch7.addGeometry(Part.LineSegment(V(0, 37.5, 0), V(0, 35.225, 0)), False)
sketch7.addGeometry(Part.LineSegment(V(0, 35.225, 0), V(0.025, 35.25, 0)), False)
sketch7.addGeometry(Part.LineSegment(V(0.025, 35.25, 0), V(1, 35.25, 0)), False)
sketch7.addGeometry(Part.LineSegment(V(1, 35.25, 0), V(1, 37.5, 0)), False)
sketch7.addGeometry(Part.LineSegment(V(0, 37.5, 0), V(1, 37.5, 0)), True)  # axis
sketch7.addConstraint(Sketcher.Constraint("Coincident", 0, 2, 1, 1))
sketch7.addConstraint(Sketcher.Constraint("Coincident", 1, 2, 2, 1))
sketch7.addConstraint(Sketcher.Constraint("Coincident", 2, 2, 3, 1))
sketch7.addConstraint(Sketcher.Constraint("Coincident", 3, 2, 4, 1))
sketch7.addConstraint(Sketcher.Constraint("Coincident", 4, 2, 0, 1))
sketch7.addConstraint(Sketcher.Constraint("Horizontal", 0))
sketch7.addConstraint(Sketcher.Constraint("Vertical", 1))
sketch7.addConstraint(Sketcher.Constraint("Horizontal", 3))
sketch7.addConstraint(Sketcher.Constraint("Vertical", 4))
sketch7.addConstraint(Sketcher.Constraint("Horizontal", 5))
sketch7.addConstraint(Sketcher.Constraint("Coincident", 5, 1, 0, 2))
sketch7.addConstraint(Sketcher.Constraint("PointOnObject", 0, 2, -2))
sketch7.addConstraint(Sketcher.Constraint("Vertical", 3, 2, 5, 2))
sketch7.addConstraint(Sketcher.Constraint("DistanceX", 0, 2, 0, 1, 1.0))
sketch7.addConstraint(Sketcher.Constraint("Angle", 2, Q("45 deg")))
sketch7.addConstraint(Sketcher.Constraint("DistanceY", 4, 1, 4, 2, 2.25))
sketch7.addConstraint(Sketcher.Constraint("DistanceY", -1, 1, 0, 2, 37.5))
sketch7.addConstraint(Sketcher.Constraint("DistanceX", 3, 1, 3, 2, 0.975))
groove3 = doc.addObject("PartDesign::Groove", "Groove002")
body.addObject(groove3)
groove3.Profile = sketch7
groove3.ReferenceAxis = (sketch7, ["Axis0"])
groove3.Angle = 360
doc.recompute()

datumline15 = doc.addObject("PartDesign::Line", "DatumLine014")
body.addObject(datumline15)
datumline15.Placement = App.Placement(V(0, 0, 0), App.Rotation(V(0, 0, 1), V(-0.819231921, 0, -0.573462344)))
linearpattern36 = doc.addObject("PartDesign::LinearPattern", "LinearPattern035")
body.addObject(linearpattern36)
linearpattern36.Originals = [groove3]
linearpattern36.Direction = (datumline15, [""])
linearpattern36.Mode = "offset"
linearpattern36.Offset = 183.098334
linearpattern36.Occurrences = 2
body.Tip = linearpattern36
doc.recompute()

linearpattern37 = doc.addObject("PartDesign::LinearPattern", "LinearPattern036")
body.addObject(linearpattern37)
linearpattern37.Originals = [groove3]
linearpattern37.Direction = (doc.X_Axis, [""])
linearpattern37.Mode = "offset"
linearpattern37.Offset = 255
linearpattern37.Occurrences = 2
linearpattern37.Reversed = True
body.Tip = linearpattern37
doc.recompute()

datumline16 = doc.addObject("PartDesign::Line", "DatumLine015")
body.addObject(datumline16)
datumline16.Placement = App.Placement(V(0, 0, 0), App.Rotation(V(0, 0, 1), V(-0.924678098, 0, -0.380749805)))
linearpattern38 = doc.addObject("PartDesign::LinearPattern", "LinearPattern037")
body.addObject(linearpattern38)
linearpattern38.Originals = [groove3]
linearpattern38.Direction = (datumline16, [""])
linearpattern38.Mode = "offset"
linearpattern38.Offset = 275.771645
linearpattern38.Occurrences = 2
body.Tip = linearpattern38
doc.recompute()

linearpattern39 = doc.addObject("PartDesign::LinearPattern", "LinearPattern038")
body.addObject(linearpattern39)
linearpattern39.Originals = [groove3]
linearpattern39.Direction = (doc.X_Axis, [""])
linearpattern39.Mode = "offset"
linearpattern39.Offset = 150
linearpattern39.Occurrences = 2
linearpattern39.Reversed = True
body.Tip = linearpattern39
doc.recompute()

linearpattern40 = doc.addObject("PartDesign::LinearPattern", "LinearPattern039")
body.addObject(linearpattern40)
linearpattern40.Originals = [groove3]
linearpattern40.Direction = (doc.Z_Axis, [""])
linearpattern40.Mode = "offset"
linearpattern40.Offset = 105
linearpattern40.Occurrences = 2
linearpattern40.Reversed = True
body.Tip = linearpattern40
doc.recompute()

datumline17 = doc.addObject("PartDesign::Line", "DatumLine016")
body.addObject(datumline17)
datumline17.Placement = App.Placement(V(0, 0, 0), App.Rotation(V(0, 0, 1), V(-0.707106781, 0, -0.707106781)))
linearpattern41 = doc.addObject("PartDesign::LinearPattern", "LinearPattern040")
body.addObject(linearpattern41)
linearpattern41.Originals = [groove3]
linearpattern41.Direction = (datumline17, [""])
linearpattern41.Mode = "offset"
linearpattern41.Offset = 148.492424
linearpattern41.Occurrences = 2
body.Tip = linearpattern41
doc.recompute()

linearpattern42 = doc.addObject("PartDesign::LinearPattern", "LinearPattern041")
body.addObject(linearpattern42)
linearpattern42.Originals = [groove3]
linearpattern42.Direction = (doc.X_Axis, [""])
linearpattern42.Mode = "offset"
linearpattern42.Offset = 105
linearpattern42.Occurrences = 2
linearpattern42.Reversed = True
body.Tip = linearpattern42

# Sketch on XZ plane
sketch8 = doc.addObject("Sketcher::SketchObject", "Sketch007")
body.addObject(sketch8)
sketch8.AttachmentSupport = (doc.XZ_Plane, [""])
sketch8.MapMode = "FlatFace"
sketch8.addGeometry(Part.Circle(V(-75, -15, 0), V(0, 0, 1), 60), False)
sketch8.addGeometry(Part.Circle(V(75, -15, 0), V(0, 0, 1), 60), False)
sketch8.addConstraint(Sketcher.Constraint("Equal", 0, 1))
sketch8.addConstraint(Sketcher.Constraint("Symmetric", 0, 3, 1, 3, -2))
sketch8.addConstraint(Sketcher.Constraint("Diameter", 0, 120.0))
sketch8.addConstraint(Sketcher.Constraint("DistanceX", 0, 3, -1, 1, 75.0))
sketch8.addConstraint(Sketcher.Constraint("DistanceY", 0, 3, -1, 1, 15.0))
pocket4 = doc.addObject("PartDesign::Pocket", "Pocket003")
body.addObject(pocket4)
pocket4.Profile = sketch8
pocket4.Length = 10

doc.recompute()
